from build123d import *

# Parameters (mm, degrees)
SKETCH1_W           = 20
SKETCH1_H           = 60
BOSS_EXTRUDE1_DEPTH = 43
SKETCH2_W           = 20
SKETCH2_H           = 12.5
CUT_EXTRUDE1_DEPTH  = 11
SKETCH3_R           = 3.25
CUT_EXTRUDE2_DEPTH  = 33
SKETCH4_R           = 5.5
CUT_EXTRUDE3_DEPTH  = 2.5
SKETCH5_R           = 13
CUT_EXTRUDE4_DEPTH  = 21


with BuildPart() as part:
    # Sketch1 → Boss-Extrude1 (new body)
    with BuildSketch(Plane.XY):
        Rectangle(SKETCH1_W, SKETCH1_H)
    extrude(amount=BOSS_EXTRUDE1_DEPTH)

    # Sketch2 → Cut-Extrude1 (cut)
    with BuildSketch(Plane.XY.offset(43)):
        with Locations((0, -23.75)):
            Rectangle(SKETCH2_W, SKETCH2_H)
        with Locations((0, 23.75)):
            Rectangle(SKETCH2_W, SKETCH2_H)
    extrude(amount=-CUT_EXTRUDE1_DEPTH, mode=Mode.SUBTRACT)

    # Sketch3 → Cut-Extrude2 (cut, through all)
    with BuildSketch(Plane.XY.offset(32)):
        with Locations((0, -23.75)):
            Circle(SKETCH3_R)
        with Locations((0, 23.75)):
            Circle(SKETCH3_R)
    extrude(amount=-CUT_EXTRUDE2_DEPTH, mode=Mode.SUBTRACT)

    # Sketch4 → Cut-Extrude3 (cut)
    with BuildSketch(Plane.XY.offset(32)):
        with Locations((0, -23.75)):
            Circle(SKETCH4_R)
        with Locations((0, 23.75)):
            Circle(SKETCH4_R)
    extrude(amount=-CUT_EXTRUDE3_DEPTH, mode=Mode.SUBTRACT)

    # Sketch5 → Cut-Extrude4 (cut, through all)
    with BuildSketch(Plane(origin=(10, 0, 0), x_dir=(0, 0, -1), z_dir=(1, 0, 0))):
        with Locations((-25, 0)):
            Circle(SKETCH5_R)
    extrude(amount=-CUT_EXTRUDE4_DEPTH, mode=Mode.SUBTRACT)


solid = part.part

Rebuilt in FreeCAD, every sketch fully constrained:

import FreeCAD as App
import Part
import Sketcher
from FreeCAD import Vector

doc = App.newDocument("Part")
body = doc.addObject("PartDesign::Body", "Body")

sketch1 = body.newObject("Sketcher::SketchObject", "Sketch")
sketch1.AttachmentSupport = (doc.getObject("XY_Plane"), [""])
sketch1.MapMode = "FlatFace"
sketch1.addGeometry(Part.LineSegment(Vector(-10, 30, 0), Vector(-10, -30, 0)), False)
sketch1.addGeometry(Part.LineSegment(Vector(-10, -30, 0), Vector(10, -30, 0)), False)
sketch1.addGeometry(Part.LineSegment(Vector(10, -30, 0), Vector(10, 30, 0)), False)
sketch1.addGeometry(Part.LineSegment(Vector(10, 30, 0), Vector(-10, 30, 0)), False)
sketch1.addConstraint(Sketcher.Constraint("Coincident", 0, 2, 1, 1))
sketch1.addConstraint(Sketcher.Constraint("Coincident", 1, 2, 2, 1))
sketch1.addConstraint(Sketcher.Constraint("Coincident", 2, 2, 3, 1))
sketch1.addConstraint(Sketcher.Constraint("Coincident", 3, 2, 0, 1))
sketch1.addConstraint(Sketcher.Constraint("Vertical", 0))
sketch1.addConstraint(Sketcher.Constraint("Horizontal", 1))
sketch1.addConstraint(Sketcher.Constraint("Vertical", 2))
sketch1.addConstraint(Sketcher.Constraint("Horizontal", 3))
sketch1.addConstraint(Sketcher.Constraint("Symmetric", 0, 2, 2, 2, -1, 1))
sketch1.addConstraint(Sketcher.Constraint("DistanceX", 1, 1, 1, 2, 20.0))
sketch1.addConstraint(Sketcher.Constraint("DistanceY", 0, 2, 0, 1, 60.0))
pad1 = body.newObject("PartDesign::Pad", "Pad")
pad1.Profile = sketch1
pad1.Length = 43

sketch2 = body.newObject("Sketcher::SketchObject", "Sketch001")
sketch2.AttachmentSupport = (doc.getObject("XY_Plane"), [""])
sketch2.MapMode = "FlatFace"
sketch2.AttachmentOffset = App.Placement(Vector(0, 0, 43), App.Rotation())
sketch2.addGeometry(Part.LineSegment(Vector(-10, -17.5, 0), Vector(-10, -30, 0)), False)
sketch2.addGeometry(Part.LineSegment(Vector(-10, -30, 0), Vector(10, -30, 0)), False)
sketch2.addGeometry(Part.LineSegment(Vector(10, -30, 0), Vector(10, -17.5, 0)), False)
sketch2.addGeometry(Part.LineSegment(Vector(10, -17.5, 0), Vector(-10, -17.5, 0)), False)
sketch2.addGeometry(Part.LineSegment(Vector(-10, 30, 0), Vector(-10, 17.5, 0)), False)
sketch2.addGeometry(Part.LineSegment(Vector(-10, 17.5, 0), Vector(10, 17.5, 0)), False)
sketch2.addGeometry(Part.LineSegment(Vector(10, 17.5, 0), Vector(10, 30, 0)), False)
sketch2.addGeometry(Part.LineSegment(Vector(10, 30, 0), Vector(-10, 30, 0)), False)
sketch2.addConstraint(Sketcher.Constraint("Coincident", 0, 2, 1, 1))
sketch2.addConstraint(Sketcher.Constraint("Coincident", 1, 2, 2, 1))
sketch2.addConstraint(Sketcher.Constraint("Coincident", 2, 2, 3, 1))
sketch2.addConstraint(Sketcher.Constraint("Coincident", 3, 2, 0, 1))
sketch2.addConstraint(Sketcher.Constraint("Coincident", 4, 2, 5, 1))
sketch2.addConstraint(Sketcher.Constraint("Coincident", 5, 2, 6, 1))
sketch2.addConstraint(Sketcher.Constraint("Coincident", 6, 2, 7, 1))
sketch2.addConstraint(Sketcher.Constraint("Coincident", 7, 2, 4, 1))
sketch2.addConstraint(Sketcher.Constraint("Vertical", 0))
sketch2.addConstraint(Sketcher.Constraint("Horizontal", 1))
sketch2.addConstraint(Sketcher.Constraint("Vertical", 2))
sketch2.addConstraint(Sketcher.Constraint("Horizontal", 3))
sketch2.addConstraint(Sketcher.Constraint("Vertical", 4))
sketch2.addConstraint(Sketcher.Constraint("Horizontal", 5))
sketch2.addConstraint(Sketcher.Constraint("Vertical", 6))
sketch2.addConstraint(Sketcher.Constraint("Horizontal", 7))
sketch2.addConstraint(Sketcher.Constraint("Symmetric", 2, 2, 4, 2, -1, 1))
sketch2.addConstraint(Sketcher.Constraint("Symmetric", 0, 2, 6, 2, -1, 1))
sketch2.addConstraint(Sketcher.Constraint("Vertical", 3, 2, 4, 2))
sketch2.addConstraint(Sketcher.Constraint("DistanceX", 1, 1, 1, 2, 20.0))
sketch2.addConstraint(Sketcher.Constraint("DistanceY", 0, 2, 0, 1, 12.5))
sketch2.addConstraint(Sketcher.Constraint("DistanceY", 0, 2, -1, 1, 30.0))
pocket1 = body.newObject("PartDesign::Pocket", "Pocket")
pocket1.Profile = sketch2
pocket1.Length = 11

sketch3 = body.newObject("Sketcher::SketchObject", "Sketch002")
sketch3.AttachmentSupport = (doc.getObject("XY_Plane"), [""])
sketch3.MapMode = "FlatFace"
sketch3.AttachmentOffset = App.Placement(Vector(0, 0, 32), App.Rotation())
sketch3.addGeometry(Part.Circle(Vector(0, -23.75, 0), Vector(0, 0, 1), 3.25), False)
sketch3.addGeometry(Part.Circle(Vector(0, 23.75, 0), Vector(0, 0, 1), 3.25), False)
sketch3.addConstraint(Sketcher.Constraint("Equal", 0, 1))
sketch3.addConstraint(Sketcher.Constraint("Symmetric", 0, 3, 1, 3, -1, 1))
sketch3.addConstraint(Sketcher.Constraint("PointOnObject", 0, 3, -2))
sketch3.addConstraint(Sketcher.Constraint("Diameter", 0, 6.5))
sketch3.addConstraint(Sketcher.Constraint("DistanceY", 0, 3, 1, 3, 47.5))
pocket2 = body.newObject("PartDesign::Pocket", "Pocket001")
pocket2.Profile = sketch3
pocket2.Type = "ThroughAll"

sketch4 = body.newObject("Sketcher::SketchObject", "Sketch003")
sketch4.AttachmentSupport = (doc.getObject("XY_Plane"), [""])
sketch4.MapMode = "FlatFace"
sketch4.AttachmentOffset = App.Placement(Vector(0, 0, 32), App.Rotation())
sketch4.addGeometry(Part.Circle(Vector(0, -23.75, 0), Vector(0, 0, 1), 5.5), False)
sketch4.addGeometry(Part.Circle(Vector(0, 23.75, 0), Vector(0, 0, 1), 5.5), False)
sketch4.addConstraint(Sketcher.Constraint("Equal", 0, 1))
sketch4.addConstraint(Sketcher.Constraint("Symmetric", 0, 3, 1, 3, -1, 1))
sketch4.addConstraint(Sketcher.Constraint("PointOnObject", 0, 3, -2))
sketch4.addConstraint(Sketcher.Constraint("Diameter", 0, 11.0))
sketch4.addConstraint(Sketcher.Constraint("DistanceY", 0, 3, 1, 3, 47.5))
pocket3 = body.newObject("PartDesign::Pocket", "Pocket002")
pocket3.Profile = sketch4
pocket3.Length = 2.5

sketch5 = body.newObject("Sketcher::SketchObject", "Sketch004")
sketch5.AttachmentSupport = (doc.getObject("YZ_Plane"), [""])
sketch5.MapMode = "FlatFace"
sketch5.AttachmentOffset = App.Placement(Vector(0, 0, 10), App.Rotation())
sketch5.addGeometry(Part.Circle(Vector(0, 25, 0), Vector(0, 0, 1), 13), False)
sketch5.addConstraint(Sketcher.Constraint("PointOnObject", 0, 3, -2))
sketch5.addConstraint(Sketcher.Constraint("Diameter", 0, 26.0))
sketch5.addConstraint(Sketcher.Constraint("DistanceY", -1, 1, 0, 3, 25.0))
pocket4 = body.newObject("PartDesign::Pocket", "Pocket003")
pocket4.Profile = sketch5
pocket4.Type = "ThroughAll"

doc.recompute()
